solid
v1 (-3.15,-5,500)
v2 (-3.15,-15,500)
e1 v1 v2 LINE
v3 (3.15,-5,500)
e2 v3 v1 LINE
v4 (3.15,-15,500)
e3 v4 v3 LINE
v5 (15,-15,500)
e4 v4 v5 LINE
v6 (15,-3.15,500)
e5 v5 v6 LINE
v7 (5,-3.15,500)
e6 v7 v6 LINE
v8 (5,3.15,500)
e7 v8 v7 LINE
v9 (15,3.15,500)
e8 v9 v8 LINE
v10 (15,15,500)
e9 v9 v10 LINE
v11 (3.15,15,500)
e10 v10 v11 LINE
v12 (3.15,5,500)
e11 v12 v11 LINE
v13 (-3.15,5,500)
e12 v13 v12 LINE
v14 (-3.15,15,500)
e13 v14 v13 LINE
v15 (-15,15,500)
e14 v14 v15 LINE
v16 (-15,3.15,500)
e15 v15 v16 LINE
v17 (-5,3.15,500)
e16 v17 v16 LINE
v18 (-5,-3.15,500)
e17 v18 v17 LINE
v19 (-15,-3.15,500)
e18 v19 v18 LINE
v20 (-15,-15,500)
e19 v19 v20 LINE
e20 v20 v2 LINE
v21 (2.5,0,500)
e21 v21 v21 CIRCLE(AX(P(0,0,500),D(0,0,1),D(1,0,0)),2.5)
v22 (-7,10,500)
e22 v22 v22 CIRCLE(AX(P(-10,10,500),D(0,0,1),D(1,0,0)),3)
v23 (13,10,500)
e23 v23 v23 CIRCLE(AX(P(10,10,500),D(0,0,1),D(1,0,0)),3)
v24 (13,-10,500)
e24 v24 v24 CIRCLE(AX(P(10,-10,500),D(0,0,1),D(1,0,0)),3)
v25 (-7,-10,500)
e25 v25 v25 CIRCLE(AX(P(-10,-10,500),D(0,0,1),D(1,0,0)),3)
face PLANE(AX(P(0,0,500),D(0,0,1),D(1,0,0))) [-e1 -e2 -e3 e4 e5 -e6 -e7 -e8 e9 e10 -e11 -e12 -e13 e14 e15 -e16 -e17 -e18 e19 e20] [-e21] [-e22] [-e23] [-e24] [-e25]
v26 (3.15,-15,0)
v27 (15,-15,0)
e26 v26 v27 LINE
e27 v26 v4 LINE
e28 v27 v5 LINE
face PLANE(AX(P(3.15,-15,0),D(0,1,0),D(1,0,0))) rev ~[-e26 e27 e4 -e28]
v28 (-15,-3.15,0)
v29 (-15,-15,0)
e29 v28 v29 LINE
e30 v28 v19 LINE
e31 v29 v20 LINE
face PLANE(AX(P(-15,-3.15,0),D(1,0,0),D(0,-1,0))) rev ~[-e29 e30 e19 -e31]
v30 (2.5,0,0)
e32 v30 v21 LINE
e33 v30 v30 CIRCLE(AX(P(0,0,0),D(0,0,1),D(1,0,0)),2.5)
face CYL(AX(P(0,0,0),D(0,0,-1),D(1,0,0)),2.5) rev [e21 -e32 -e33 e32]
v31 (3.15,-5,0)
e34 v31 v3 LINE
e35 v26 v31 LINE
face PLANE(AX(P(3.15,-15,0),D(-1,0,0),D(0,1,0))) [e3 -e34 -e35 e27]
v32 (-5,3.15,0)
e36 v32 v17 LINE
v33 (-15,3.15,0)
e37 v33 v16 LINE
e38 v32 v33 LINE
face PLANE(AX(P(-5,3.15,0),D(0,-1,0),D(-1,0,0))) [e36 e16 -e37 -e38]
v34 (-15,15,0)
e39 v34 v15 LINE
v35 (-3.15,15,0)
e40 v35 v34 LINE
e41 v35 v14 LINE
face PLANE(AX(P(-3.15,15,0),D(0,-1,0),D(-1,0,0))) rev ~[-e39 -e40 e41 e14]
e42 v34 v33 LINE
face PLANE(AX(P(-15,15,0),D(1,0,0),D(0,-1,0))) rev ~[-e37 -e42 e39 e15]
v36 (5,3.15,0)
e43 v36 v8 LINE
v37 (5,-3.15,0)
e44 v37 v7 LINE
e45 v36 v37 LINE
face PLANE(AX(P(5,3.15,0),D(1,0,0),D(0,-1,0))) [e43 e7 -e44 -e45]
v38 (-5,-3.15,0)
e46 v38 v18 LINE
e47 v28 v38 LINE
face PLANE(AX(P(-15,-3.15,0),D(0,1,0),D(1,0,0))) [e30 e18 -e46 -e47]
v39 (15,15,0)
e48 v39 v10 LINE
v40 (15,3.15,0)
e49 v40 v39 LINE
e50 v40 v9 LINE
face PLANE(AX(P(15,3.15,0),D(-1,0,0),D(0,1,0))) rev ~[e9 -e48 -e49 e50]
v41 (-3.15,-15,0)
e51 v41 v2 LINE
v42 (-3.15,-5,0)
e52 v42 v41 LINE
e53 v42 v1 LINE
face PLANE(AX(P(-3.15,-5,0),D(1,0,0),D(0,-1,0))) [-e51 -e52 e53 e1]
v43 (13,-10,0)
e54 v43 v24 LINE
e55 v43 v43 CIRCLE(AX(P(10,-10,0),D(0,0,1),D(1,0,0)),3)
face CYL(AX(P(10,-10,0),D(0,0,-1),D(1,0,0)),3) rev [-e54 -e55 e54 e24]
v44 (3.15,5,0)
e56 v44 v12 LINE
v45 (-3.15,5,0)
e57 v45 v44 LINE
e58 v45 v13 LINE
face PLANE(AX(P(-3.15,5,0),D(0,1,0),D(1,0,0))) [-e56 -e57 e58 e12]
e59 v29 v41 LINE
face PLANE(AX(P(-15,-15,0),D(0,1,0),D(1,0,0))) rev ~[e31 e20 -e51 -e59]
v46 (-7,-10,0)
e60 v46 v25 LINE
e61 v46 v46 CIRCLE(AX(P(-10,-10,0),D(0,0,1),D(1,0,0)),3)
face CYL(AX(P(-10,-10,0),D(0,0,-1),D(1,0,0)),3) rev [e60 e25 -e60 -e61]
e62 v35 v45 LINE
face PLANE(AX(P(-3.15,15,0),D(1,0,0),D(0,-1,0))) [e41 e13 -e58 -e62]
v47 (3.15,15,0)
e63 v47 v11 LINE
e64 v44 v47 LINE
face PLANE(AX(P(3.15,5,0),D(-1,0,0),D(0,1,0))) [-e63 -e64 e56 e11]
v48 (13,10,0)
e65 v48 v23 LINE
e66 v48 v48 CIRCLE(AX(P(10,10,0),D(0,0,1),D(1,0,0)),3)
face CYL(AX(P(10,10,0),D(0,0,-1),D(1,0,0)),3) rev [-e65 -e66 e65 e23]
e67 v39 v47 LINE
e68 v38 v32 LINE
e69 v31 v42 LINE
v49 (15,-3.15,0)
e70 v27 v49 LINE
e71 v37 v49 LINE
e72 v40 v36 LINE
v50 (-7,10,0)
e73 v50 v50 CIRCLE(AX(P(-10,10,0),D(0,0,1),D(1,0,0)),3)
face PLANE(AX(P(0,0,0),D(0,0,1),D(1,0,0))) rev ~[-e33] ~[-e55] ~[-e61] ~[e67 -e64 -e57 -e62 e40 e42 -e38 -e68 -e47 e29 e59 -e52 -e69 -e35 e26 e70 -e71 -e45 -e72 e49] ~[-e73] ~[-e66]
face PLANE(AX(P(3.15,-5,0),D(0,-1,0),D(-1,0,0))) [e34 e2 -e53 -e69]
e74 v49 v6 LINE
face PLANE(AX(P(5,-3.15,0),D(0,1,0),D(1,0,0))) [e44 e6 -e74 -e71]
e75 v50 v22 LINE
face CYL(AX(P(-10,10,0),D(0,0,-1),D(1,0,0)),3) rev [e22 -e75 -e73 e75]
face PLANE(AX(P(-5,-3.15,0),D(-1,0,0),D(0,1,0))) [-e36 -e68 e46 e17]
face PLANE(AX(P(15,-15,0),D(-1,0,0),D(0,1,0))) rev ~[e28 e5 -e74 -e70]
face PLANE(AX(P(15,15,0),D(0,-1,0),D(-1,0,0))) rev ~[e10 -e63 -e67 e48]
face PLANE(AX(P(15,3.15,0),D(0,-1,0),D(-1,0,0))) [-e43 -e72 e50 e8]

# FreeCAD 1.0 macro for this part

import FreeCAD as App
import Part
import Sketcher

V = App.Vector
Q = App.Units.Quantity

doc = App.newDocument("Part")
body = doc.addObject("PartDesign::Body", "Body")

# Sketch on XY plane
sketch1 = body.newObject("Sketcher::SketchObject", "Sketch")
sketch1.AttachmentSupport = (doc.getObject("XY_Plane"), [""])
sketch1.MapMode = "FlatFace"
sketch1.addGeometry([
    Part.LineSegment(V(15, 3.1, 0), V(15, 15, 0)),  # 0
    Part.LineSegment(V(15, 15, 0), V(3.1, 15, 0)),  # 1
    Part.LineSegment(V(3.1, 15, 0), V(3.1, 5, 0)),  # 2
    Part.LineSegment(V(3.1, 5, 0), V(-3.1, 5, 0)),  # 3
    Part.LineSegment(V(-3.1, 5, 0), V(-3.1, 15, 0)),  # 4
    Part.LineSegment(V(-3.1, 15, 0), V(-15, 15, 0)),  # 5
    Part.LineSegment(V(-15, 15, 0), V(-15, 3.1, 0)),  # 6
    Part.LineSegment(V(-15, 3.1, 0), V(-5, 3.1, 0)),  # 7
    Part.LineSegment(V(-5, 3.1, 0), V(-5, -3.1, 0)),  # 8
    Part.LineSegment(V(-5, -3.1, 0), V(-15, -3.1, 0)),  # 9
    Part.LineSegment(V(-15, -3.1, 0), V(-15, -15, 0)),  # 10
    Part.LineSegment(V(-15, -15, 0), V(-3.1, -15, 0)),  # 11
    Part.LineSegment(V(-3.1, -15, 0), V(-3.1, -5, 0)),  # 12
    Part.LineSegment(V(-3.1, -5, 0), V(3.1, -5, 0)),  # 13
    Part.LineSegment(V(3.1, -5, 0), V(3.1, -15, 0)),  # 14
    Part.LineSegment(V(3.1, -15, 0), V(15, -15, 0)),  # 15
    Part.LineSegment(V(15, -15, 0), V(15, -3.1, 0)),  # 16
    Part.LineSegment(V(15, -3.1, 0), V(5, -3.1, 0)),  # 17
    Part.LineSegment(V(5, -3.1, 0), V(5, 3.1, 0)),  # 18
    Part.LineSegment(V(5, 3.1, 0), V(15, 3.1, 0)),  # 19
    Part.Circle(V(-10, -10, 0), V(0, 0, 1), 3),  # 20
    Part.Circle(V(10, -10, 0), V(0, 0, 1), 3),  # 21
    Part.Circle(V(-10, 10, 0), V(0, 0, 1), 3),  # 22
    Part.Circle(V(0, 0, 0), V(0, 0, 1), 2.5),  # 23
    Part.Circle(V(10, 10, 0), V(0, 0, 1), 3),  # 24
], False)
sketch1.addConstraint([
    Sketcher.Constraint("Coincident", 0, 2, 1, 1),
    Sketcher.Constraint("Coincident", 1, 2, 2, 1),
    Sketcher.Constraint("Coincident", 2, 2, 3, 1),
    Sketcher.Constraint("Coincident", 3, 2, 4, 1),
    Sketcher.Constraint("Coincident", 4, 2, 5, 1),
    Sketcher.Constraint("Coincident", 5, 2, 6, 1),
    Sketcher.Constraint("Coincident", 6, 2, 7, 1),
    Sketcher.Constraint("Coincident", 7, 2, 8, 1),
    Sketcher.Constraint("Coincident", 8, 2, 9, 1),
    Sketcher.Constraint("Coincident", 9, 2, 10, 1),
    Sketcher.Constraint("Coincident", 10, 2, 11, 1),
    Sketcher.Constraint("Coincident", 11, 2, 12, 1),
    Sketcher.Constraint("Coincident", 12, 2, 13, 1),
    Sketcher.Constraint("Coincident", 13, 2, 14, 1),
    Sketcher.Constraint("Coincident", 14, 2, 15, 1),
    Sketcher.Constraint("Coincident", 15, 2, 16, 1),
    Sketcher.Constraint("Coincident", 16, 2, 17, 1),
    Sketcher.Constraint("Coincident", 17, 2, 18, 1),
    Sketcher.Constraint("Coincident", 18, 2, 19, 1),
    Sketcher.Constraint("Coincident", 19, 2, 0, 1),
    Sketcher.Constraint("Vertical", 0),
    Sketcher.Constraint("Horizontal", 1),
    Sketcher.Constraint("Vertical", 2),
    Sketcher.Constraint("Horizontal", 3),
    Sketcher.Constraint("Vertical", 4),
    Sketcher.Constraint("Horizontal", 5),
    Sketcher.Constraint("Vertical", 6),
    Sketcher.Constraint("Horizontal", 7),
    Sketcher.Constraint("Vertical", 8),
    Sketcher.Constraint("Horizontal", 9),
    Sketcher.Constraint("Vertical", 10),
    Sketcher.Constraint("Horizontal", 11),
    Sketcher.Constraint("Vertical", 12),
    Sketcher.Constraint("Horizontal", 13),
    Sketcher.Constraint("Vertical", 14),
    Sketcher.Constraint("Horizontal", 15),
    Sketcher.Constraint("Vertical", 16),
    Sketcher.Constraint("Horizontal", 17),
    Sketcher.Constraint("Vertical", 18),
    Sketcher.Constraint("Horizontal", 19),
    Sketcher.Constraint("Coincident", 23, 3, -1, 1),
    Sketcher.Constraint("Equal", 20, 21),
    Sketcher.Constraint("Equal", 21, 22),
    Sketcher.Constraint("Equal", 22, 24),
    Sketcher.Constraint("Symmetric", 21, 3, 22, 3, -1, 1),
    Sketcher.Constraint("Symmetric", 20, 3, 24, 3, -1, 1),
    Sketcher.Constraint("Symmetric", 0, 2, 10, 2, -1, 1),
    Sketcher.Constraint("Symmetric", 2, 2, 12, 2, -1, 1),
    Sketcher.Constraint("Symmetric", 4, 2, 14, 2, -1, 1),
    Sketcher.Constraint("Symmetric", 6, 2, 16, 2, -1, 1),
    Sketcher.Constraint("Symmetric", 8, 2, 18, 2, -1, 1),
    Sketcher.Constraint("Symmetric", 20, 3, 21, 3, -2),
    Sketcher.Constraint("Symmetric", 1, 2, 4, 2, -2),
    Sketcher.Constraint("Symmetric", 9, 2, 16, 2, -2),
    Sketcher.Constraint("Equal", 15, 0),
    Sketcher.Constraint("Equal", 19, 2),
    Sketcher.Constraint("Equal", 13, 8),
    Sketcher.Constraint("Diameter", 20, Q("6 mm")),
    Sketcher.Constraint("Diameter", 23, Q("5 mm")),
    Sketcher.Constraint("DistanceX", 7, 1, 7, 2, Q("10 mm")),
    Sketcher.Constraint("DistanceX", 3, 2, 3, 1, Q("6.3 mm")),
    Sketcher.Constraint("DistanceX", 20, 3, -1, 1, Q("10 mm")),
    Sketcher.Constraint("DistanceY", 20, 3, -1, 1, Q("10 mm")),
    Sketcher.Constraint("DistanceX", -1, 1, 0, 2, Q("15 mm")),
])
pad1 = body.newObject("PartDesign::Pad", "Pad")
pad1.Profile = sketch1
pad1.Length = 500

doc.recompute()
